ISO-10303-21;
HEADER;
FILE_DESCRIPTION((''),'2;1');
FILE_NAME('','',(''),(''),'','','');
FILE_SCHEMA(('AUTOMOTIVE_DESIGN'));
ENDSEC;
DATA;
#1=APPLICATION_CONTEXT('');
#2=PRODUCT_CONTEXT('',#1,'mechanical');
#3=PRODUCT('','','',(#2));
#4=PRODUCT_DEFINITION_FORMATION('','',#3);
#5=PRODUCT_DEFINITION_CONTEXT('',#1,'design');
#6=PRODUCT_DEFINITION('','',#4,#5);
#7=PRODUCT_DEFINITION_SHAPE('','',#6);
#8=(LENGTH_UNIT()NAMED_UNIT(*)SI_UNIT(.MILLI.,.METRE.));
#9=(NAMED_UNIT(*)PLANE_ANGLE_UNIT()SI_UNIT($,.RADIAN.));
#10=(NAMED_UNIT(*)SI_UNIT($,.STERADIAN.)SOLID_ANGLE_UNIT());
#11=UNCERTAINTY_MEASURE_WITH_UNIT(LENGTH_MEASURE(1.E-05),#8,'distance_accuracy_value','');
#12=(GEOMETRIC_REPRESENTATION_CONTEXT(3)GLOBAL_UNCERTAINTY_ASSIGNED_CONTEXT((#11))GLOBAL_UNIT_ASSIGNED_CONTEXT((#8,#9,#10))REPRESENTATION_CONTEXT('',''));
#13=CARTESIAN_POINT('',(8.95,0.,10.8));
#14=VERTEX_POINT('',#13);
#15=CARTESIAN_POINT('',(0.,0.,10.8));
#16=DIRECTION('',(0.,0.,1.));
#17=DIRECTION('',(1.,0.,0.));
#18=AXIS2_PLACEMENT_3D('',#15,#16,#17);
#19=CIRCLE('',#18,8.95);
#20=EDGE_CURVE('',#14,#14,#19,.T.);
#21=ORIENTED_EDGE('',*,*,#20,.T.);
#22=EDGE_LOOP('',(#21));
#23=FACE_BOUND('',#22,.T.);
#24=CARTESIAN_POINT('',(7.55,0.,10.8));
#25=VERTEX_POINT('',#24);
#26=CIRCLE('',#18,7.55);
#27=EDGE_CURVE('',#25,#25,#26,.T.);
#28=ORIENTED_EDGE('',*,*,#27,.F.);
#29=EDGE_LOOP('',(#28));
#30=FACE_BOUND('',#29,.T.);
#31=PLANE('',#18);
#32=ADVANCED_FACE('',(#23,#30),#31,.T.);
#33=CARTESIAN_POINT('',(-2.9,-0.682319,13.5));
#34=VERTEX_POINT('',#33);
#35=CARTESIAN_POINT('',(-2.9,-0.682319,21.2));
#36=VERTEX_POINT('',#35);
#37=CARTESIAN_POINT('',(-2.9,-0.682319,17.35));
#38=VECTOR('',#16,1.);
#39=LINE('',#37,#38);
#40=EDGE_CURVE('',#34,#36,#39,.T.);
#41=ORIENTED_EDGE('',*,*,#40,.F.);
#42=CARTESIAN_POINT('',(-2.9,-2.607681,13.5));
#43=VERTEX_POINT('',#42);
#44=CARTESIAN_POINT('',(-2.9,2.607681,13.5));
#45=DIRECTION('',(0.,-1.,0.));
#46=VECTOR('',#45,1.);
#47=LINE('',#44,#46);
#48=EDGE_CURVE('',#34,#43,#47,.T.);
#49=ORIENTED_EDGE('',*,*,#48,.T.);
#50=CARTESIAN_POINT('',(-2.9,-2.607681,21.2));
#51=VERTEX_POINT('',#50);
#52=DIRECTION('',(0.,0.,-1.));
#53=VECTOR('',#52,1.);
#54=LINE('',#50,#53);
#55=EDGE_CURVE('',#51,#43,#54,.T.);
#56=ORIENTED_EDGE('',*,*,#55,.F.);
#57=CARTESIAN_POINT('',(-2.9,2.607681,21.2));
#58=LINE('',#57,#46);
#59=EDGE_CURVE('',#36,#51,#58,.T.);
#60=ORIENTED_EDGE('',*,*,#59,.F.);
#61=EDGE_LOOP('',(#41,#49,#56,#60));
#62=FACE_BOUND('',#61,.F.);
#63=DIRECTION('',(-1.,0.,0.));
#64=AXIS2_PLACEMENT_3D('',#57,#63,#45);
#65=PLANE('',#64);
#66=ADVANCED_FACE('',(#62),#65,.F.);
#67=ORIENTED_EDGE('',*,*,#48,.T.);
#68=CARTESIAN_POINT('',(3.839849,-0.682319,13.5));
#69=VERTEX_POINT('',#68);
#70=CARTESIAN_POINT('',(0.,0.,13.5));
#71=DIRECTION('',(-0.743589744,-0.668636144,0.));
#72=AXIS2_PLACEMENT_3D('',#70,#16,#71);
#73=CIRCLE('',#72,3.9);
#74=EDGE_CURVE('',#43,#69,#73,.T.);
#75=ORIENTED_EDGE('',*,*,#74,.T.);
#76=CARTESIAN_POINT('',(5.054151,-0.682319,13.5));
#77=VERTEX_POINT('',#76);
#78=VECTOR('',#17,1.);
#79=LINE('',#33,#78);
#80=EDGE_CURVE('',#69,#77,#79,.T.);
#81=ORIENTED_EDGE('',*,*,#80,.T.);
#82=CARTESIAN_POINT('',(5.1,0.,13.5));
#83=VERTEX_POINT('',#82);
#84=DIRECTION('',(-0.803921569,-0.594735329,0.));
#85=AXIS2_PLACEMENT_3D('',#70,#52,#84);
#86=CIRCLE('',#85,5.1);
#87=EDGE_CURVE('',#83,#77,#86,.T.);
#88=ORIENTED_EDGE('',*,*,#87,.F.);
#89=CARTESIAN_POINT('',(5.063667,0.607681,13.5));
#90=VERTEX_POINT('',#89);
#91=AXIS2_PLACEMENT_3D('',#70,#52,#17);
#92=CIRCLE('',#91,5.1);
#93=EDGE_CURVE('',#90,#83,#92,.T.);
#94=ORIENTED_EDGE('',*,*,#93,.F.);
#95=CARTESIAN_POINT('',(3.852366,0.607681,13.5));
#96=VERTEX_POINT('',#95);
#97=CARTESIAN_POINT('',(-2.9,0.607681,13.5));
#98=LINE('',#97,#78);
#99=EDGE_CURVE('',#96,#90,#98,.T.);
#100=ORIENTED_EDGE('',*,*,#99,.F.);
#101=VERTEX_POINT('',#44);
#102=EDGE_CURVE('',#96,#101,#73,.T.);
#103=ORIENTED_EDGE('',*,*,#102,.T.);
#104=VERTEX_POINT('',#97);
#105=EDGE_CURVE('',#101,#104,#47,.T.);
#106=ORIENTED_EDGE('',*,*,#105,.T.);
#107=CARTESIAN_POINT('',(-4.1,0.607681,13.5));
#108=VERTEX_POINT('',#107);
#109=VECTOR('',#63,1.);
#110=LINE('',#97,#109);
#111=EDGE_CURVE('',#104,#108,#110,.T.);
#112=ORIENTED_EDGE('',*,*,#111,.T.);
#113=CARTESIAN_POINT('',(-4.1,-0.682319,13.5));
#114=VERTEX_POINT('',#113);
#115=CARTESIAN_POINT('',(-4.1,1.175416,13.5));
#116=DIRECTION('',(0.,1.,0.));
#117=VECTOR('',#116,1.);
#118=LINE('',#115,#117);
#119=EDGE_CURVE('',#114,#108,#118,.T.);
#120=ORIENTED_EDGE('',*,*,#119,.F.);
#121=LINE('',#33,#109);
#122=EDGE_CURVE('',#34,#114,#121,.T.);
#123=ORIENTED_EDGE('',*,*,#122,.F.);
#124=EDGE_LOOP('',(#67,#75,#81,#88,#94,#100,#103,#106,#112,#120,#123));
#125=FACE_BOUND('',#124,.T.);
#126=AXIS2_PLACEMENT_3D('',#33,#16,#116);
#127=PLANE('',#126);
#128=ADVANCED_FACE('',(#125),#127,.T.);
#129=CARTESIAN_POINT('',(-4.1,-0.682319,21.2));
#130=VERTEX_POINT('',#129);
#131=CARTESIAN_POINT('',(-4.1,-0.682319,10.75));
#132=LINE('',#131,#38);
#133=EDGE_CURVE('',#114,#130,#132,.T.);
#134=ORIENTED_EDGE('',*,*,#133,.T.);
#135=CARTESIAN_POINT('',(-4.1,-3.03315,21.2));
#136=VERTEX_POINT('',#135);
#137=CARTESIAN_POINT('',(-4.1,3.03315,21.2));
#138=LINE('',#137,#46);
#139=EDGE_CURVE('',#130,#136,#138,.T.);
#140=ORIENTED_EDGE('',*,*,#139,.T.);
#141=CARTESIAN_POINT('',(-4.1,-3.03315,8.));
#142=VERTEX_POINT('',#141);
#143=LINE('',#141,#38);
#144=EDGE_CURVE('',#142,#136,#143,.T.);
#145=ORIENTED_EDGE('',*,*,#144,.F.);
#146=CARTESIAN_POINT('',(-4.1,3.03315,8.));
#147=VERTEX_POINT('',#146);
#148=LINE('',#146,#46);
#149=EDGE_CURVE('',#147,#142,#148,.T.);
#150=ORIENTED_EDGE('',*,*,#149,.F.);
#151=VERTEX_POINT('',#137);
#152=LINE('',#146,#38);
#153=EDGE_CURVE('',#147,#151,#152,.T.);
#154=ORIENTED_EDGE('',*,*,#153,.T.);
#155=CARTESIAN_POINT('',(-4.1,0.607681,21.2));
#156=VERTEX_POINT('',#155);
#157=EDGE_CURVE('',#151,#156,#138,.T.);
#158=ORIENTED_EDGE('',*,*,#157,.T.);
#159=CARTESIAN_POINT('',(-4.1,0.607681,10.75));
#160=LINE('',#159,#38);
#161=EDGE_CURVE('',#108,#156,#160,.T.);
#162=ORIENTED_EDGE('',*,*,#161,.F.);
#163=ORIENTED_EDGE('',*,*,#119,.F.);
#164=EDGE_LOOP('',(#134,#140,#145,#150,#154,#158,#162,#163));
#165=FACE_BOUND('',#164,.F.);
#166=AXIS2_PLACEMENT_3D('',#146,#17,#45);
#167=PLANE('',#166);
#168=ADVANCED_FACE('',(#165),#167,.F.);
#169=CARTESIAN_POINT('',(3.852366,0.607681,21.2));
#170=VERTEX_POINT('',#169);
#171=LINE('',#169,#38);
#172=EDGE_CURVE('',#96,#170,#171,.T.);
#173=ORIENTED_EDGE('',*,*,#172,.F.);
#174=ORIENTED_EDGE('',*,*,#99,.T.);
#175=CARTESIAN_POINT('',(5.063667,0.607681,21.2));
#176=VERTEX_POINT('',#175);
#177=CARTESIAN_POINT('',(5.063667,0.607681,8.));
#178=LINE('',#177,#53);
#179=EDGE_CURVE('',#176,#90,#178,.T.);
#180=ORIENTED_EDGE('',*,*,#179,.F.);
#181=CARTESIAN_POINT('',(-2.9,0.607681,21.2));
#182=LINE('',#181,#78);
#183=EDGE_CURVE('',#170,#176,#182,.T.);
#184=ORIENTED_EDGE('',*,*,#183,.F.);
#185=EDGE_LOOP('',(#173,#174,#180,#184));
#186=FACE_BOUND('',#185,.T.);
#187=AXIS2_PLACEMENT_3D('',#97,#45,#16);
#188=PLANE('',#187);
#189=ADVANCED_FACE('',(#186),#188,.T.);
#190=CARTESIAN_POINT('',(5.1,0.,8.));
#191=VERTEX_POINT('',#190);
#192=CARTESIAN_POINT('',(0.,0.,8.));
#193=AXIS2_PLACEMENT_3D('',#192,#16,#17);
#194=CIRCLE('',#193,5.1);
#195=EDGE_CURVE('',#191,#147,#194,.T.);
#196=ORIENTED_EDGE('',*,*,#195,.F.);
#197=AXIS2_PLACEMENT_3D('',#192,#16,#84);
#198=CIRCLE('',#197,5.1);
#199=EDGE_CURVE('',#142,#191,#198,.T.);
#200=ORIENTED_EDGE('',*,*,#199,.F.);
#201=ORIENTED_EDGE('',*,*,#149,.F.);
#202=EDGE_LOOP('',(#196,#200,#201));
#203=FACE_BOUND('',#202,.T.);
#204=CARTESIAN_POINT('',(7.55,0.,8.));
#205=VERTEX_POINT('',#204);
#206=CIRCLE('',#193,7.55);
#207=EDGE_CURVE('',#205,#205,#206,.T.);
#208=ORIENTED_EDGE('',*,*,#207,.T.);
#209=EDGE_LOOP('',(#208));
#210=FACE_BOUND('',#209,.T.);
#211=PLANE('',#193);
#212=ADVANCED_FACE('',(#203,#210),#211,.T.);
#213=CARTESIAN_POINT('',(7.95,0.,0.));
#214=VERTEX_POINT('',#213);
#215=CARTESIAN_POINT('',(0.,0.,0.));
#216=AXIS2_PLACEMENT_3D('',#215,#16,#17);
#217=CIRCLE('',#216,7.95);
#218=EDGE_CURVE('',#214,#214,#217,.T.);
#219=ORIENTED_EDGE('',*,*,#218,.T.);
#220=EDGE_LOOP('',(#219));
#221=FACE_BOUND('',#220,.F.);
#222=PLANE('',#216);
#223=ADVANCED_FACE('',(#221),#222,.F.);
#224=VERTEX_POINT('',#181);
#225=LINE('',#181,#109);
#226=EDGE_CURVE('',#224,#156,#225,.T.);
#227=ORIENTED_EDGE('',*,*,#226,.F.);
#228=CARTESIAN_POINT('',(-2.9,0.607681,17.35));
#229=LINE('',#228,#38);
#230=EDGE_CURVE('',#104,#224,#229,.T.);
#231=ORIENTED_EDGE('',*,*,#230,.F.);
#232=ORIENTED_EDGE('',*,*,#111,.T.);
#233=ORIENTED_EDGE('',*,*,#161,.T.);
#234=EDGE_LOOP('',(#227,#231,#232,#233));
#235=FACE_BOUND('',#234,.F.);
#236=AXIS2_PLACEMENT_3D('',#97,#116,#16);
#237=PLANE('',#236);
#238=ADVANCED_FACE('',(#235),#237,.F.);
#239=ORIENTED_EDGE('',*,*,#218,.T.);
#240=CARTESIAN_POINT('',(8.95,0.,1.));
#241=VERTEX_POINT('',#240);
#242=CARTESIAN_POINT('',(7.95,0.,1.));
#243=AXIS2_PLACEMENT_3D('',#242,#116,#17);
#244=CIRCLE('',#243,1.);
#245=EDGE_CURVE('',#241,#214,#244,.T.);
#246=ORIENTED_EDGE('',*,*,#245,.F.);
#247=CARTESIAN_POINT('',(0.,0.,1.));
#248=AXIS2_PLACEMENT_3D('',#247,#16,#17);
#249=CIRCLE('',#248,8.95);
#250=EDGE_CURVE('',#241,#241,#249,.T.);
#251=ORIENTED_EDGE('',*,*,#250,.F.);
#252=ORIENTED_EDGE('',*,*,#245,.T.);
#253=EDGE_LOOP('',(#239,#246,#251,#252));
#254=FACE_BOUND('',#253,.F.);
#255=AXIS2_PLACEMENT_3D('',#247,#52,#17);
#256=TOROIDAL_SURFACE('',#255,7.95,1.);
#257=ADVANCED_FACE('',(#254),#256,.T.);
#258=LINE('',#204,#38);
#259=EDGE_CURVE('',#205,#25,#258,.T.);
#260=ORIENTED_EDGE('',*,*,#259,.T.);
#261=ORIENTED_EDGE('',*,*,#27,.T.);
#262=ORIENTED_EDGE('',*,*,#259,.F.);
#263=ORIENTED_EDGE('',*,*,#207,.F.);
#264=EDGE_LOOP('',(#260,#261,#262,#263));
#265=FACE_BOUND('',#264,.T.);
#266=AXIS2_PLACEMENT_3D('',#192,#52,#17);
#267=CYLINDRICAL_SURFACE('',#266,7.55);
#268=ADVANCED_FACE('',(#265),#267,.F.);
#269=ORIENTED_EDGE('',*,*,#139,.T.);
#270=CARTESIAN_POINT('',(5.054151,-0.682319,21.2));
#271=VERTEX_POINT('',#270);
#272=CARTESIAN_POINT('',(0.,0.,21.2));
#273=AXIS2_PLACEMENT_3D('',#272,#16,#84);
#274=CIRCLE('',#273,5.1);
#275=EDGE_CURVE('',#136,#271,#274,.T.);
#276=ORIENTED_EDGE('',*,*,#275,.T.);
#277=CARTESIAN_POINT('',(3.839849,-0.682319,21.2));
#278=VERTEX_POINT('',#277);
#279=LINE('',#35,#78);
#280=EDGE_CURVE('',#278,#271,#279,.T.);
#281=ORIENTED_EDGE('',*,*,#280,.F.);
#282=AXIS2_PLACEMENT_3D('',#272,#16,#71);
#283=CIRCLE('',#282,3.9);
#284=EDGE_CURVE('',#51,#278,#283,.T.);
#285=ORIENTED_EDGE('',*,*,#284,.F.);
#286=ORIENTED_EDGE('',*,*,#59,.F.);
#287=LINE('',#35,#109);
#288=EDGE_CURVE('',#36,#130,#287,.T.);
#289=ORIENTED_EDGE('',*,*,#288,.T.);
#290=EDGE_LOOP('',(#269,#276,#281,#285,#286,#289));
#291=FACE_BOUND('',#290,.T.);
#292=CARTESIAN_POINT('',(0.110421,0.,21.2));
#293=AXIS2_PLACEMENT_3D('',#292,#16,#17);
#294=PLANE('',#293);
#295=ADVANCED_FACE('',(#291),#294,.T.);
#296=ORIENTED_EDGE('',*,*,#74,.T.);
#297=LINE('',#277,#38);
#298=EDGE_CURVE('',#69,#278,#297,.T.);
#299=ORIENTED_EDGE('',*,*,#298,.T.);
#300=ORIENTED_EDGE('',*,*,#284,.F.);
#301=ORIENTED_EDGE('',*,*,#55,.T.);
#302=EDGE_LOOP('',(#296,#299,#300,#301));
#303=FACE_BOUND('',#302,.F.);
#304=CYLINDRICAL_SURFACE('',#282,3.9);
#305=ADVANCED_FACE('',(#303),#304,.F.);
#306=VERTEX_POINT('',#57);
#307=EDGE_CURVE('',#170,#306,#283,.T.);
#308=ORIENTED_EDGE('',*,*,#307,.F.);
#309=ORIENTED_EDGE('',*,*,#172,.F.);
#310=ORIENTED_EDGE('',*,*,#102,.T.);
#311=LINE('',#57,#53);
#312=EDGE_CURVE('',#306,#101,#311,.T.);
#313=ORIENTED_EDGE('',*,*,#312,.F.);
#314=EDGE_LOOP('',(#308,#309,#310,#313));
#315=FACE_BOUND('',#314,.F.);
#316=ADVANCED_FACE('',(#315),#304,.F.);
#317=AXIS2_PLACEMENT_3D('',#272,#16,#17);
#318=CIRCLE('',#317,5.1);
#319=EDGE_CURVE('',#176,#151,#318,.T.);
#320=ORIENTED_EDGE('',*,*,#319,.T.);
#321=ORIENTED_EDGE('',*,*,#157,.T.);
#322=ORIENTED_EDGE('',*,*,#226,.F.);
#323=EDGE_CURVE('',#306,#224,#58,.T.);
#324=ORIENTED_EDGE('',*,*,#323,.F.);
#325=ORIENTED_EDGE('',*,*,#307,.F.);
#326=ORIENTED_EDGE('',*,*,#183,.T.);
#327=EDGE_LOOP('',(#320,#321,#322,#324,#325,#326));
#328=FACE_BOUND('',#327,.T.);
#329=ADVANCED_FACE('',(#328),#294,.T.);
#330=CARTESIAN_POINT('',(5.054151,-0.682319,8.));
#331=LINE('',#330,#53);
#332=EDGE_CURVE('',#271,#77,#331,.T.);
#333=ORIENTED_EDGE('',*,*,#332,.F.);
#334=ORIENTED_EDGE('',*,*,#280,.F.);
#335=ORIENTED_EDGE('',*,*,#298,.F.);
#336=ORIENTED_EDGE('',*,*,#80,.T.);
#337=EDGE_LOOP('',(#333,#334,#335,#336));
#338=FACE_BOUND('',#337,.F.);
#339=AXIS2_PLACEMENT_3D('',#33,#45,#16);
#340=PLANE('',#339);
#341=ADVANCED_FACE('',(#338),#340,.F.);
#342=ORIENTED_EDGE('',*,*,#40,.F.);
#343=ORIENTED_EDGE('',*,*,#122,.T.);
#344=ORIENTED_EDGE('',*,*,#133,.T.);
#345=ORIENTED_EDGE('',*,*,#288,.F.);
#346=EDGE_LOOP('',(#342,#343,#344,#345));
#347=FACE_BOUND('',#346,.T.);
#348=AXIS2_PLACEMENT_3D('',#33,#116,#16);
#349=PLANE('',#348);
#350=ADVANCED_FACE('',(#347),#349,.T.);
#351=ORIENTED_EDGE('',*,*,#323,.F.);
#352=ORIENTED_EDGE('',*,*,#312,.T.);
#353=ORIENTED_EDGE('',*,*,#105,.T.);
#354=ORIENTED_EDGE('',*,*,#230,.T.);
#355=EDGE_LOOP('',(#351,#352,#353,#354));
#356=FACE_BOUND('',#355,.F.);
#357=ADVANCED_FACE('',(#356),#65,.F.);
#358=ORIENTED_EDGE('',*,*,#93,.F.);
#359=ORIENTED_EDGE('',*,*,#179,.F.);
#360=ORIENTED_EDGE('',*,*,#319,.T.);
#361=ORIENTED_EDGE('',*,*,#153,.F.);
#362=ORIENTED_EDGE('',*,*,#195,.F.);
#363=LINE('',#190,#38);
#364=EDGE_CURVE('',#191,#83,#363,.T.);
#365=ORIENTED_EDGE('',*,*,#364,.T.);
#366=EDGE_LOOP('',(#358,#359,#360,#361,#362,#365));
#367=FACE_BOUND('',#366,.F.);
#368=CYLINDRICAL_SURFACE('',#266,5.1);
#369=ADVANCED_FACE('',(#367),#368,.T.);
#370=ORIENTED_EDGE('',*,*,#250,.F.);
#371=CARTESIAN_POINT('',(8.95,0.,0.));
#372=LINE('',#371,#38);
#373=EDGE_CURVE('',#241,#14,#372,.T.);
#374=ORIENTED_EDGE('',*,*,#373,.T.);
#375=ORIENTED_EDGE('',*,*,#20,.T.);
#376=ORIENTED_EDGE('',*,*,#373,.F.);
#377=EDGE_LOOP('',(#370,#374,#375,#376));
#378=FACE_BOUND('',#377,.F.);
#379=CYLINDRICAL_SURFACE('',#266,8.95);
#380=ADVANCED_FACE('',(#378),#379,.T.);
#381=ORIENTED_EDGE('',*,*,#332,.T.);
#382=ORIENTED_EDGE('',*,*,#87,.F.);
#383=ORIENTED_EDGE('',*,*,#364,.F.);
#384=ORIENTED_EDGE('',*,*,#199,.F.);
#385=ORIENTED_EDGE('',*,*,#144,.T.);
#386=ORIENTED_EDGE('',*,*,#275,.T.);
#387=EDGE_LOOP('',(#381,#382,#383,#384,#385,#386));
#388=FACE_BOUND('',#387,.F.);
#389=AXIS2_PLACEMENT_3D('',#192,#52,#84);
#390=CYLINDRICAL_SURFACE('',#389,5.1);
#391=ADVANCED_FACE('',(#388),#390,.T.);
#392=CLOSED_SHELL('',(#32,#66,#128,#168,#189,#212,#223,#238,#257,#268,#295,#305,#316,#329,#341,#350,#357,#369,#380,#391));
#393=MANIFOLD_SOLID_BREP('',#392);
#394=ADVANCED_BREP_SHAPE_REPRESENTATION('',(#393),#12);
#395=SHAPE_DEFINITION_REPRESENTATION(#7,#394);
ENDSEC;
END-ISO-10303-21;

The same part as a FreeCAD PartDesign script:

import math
import FreeCAD as App
import Part
import Sketcher

V = App.Vector
Q = App.Units.Quantity


def edges_at(feature, points):
    """Names of the edges that pass closest to the given points."""
    edges = feature.Shape.Edges
    near = lambda p: min(range(len(edges)), key=lambda i: edges[i].distToShape(Part.Vertex(*p))[0])
    return sorted({f"Edge{near(p) + 1}" for p in points})

doc = App.newDocument("Part")
params = doc.addObject("Spreadsheet::Sheet", "Params")
for row, (alias, value) in enumerate([
    ("sketch1_diameter", "17.9 mm"),
    ("pad1_length", "8 mm"),
    ("sketch2_diameter", "17.9 mm"),
    ("sketch2_diameter2", "15.1 mm"),
    ("pad2_length", "2.8 mm"),
    ("sketch3_radius", "5.1 mm"),
    ("pad3_length", "13.2 mm"),
    ("fillet_radius", "1 mm"),
    ("sketch4_radius", "3.9 mm"),
    ("pocket1_length", "7.7 mm"),
    ("sketch5_height", "7.7 mm"),
    ("sketch5_width", "1.29 mm"),
], start=1):
    params.set(f"A{row}", alias)
    params.set(f"B{row}", "=" + value)
    params.setAlias(f"B{row}", alias)

body = doc.addObject("PartDesign::Body", "Body")

# Sketch on XY plane
sketch1 = body.newObject("Sketcher::SketchObject", "Sketch")
sketch1.AttachmentSupport = (doc.getObject("XY_Plane"), [""])
sketch1.MapMode = "FlatFace"
sketch1.addGeometry(Part.Circle(V(0, 0, 0), V(0, 0, 1), 9), False)
sketch1.addConstraint([
    Sketcher.Constraint("Coincident", 0, 3, -1, 1),
    Sketcher.Constraint("Diameter", 0, Q("17.9 mm")),
])
sketch1.setExpression("Constraints[1]", "Params.sketch1_diameter")
pad1 = body.newObject("PartDesign::Pad", "Pad")
pad1.Profile = sketch1
pad1.setExpression("Length", "Params.pad1_length")

# Sketch on XY plane
sketch2 = body.newObject("Sketcher::SketchObject", "Sketch001")
sketch2.AttachmentSupport = (doc.getObject("XY_Plane"), [""])
sketch2.MapMode = "FlatFace"
sketch2.AttachmentOffset = App.Placement(V(0, 0, 8), App.Rotation())
sketch2.addGeometry([
    Part.Circle(V(0, 0, 0), V(0, 0, 1), 9),
    Part.Circle(V(0, 0, 0), V(0, 0, 1), 8),
], False)
sketch2.addConstraint([
    Sketcher.Constraint("Coincident", 0, 3, -1, 1),
    Sketcher.Constraint("Coincident", 1, 3, -1, 1),
    Sketcher.Constraint("Diameter", 0, Q("17.9 mm")),
    Sketcher.Constraint("Diameter", 1, Q("15.1 mm")),
])
sketch2.setExpression("Constraints[2]", "Params.sketch2_diameter")
sketch2.setExpression("Constraints[3]", "Params.sketch2_diameter2")
pad2 = body.newObject("PartDesign::Pad", "Pad001")
pad2.Profile = sketch2
pad2.setExpression("Length", "Params.pad2_length")

# Sketch on XY plane
sketch3 = body.newObject("Sketcher::SketchObject", "Sketch002")
sketch3.AttachmentSupport = (doc.getObject("XY_Plane"), [""])
sketch3.MapMode = "FlatFace"
sketch3.AttachmentOffset = App.Placement(V(0, 0, 8), App.Rotation())
sketch3.addGeometry([
    Part.ArcOfCircle(Part.Circle(V(0, 0, 0), V(0, 0, 1), 5), math.radians(-144), math.radians(0)),
    Part.ArcOfCircle(Part.Circle(V(0, 0, 0), V(0, 0, 1), 5), math.radians(0), math.radians(144)),
    Part.LineSegment(V(-4, 3, 0), V(-4, -3, 0)),
], False)
sketch3.addConstraint([
    Sketcher.Constraint("Tangent", 0, 2, 1, 1),
    Sketcher.Constraint("Coincident", 1, 2, 2, 1),
    Sketcher.Constraint("Coincident", 2, 2, 0, 1),
    Sketcher.Constraint("Vertical", 2),
    Sketcher.Constraint("Coincident", 0, 3, -1, 1),
    Sketcher.Constraint("Equal", 0, 1),
    Sketcher.Constraint("PointOnObject", 0, 2, -1),
    Sketcher.Constraint("Radius", 0, Q("5.1 mm")),
    Sketcher.Constraint("DistanceX", 1, 2, -1, 1, Q("4.1 mm")),
])
sketch3.setExpression("Constraints[7]", "Params.sketch3_radius")
pad3 = body.newObject("PartDesign::Pad", "Pad002")
pad3.Profile = sketch3
pad3.setExpression("Length", "Params.pad3_length")
doc.recompute()

fillet = body.newObject("PartDesign::Fillet", "Fillet")
fillet.Base = (pad3, edges_at(pad3, [(-8.95, 0, 0)]))
fillet.setExpression("Radius", "Params.fillet_radius")

# Sketch on XY plane
sketch4 = body.newObject("Sketcher::SketchObject", "Sketch003")
sketch4.AttachmentSupport = (doc.getObject("XY_Plane"), [""])
sketch4.MapMode = "FlatFace"
sketch4.AttachmentOffset = App.Placement(V(0, 0, 21.2), App.Rotation())
sketch4.addGeometry([
    Part.LineSegment(V(-2.9, 2.6, 0), V(-2.9, -2.6, 0)),
    Part.ArcOfCircle(Part.Circle(V(0, 0, 0), V(0, 0, 1), 3.9), math.radians(-138), math.radians(138)),
], False)
sketch4.addConstraint([
    Sketcher.Constraint("Coincident", 0, 1, 1, 2),
    Sketcher.Constraint("Coincident", 1, 1, 0, 2),
    Sketcher.Constraint("Vertical", 0),
    Sketcher.Constraint("Coincident", 1, 3, -1, 1),
    Sketcher.Constraint("Radius", 1, Q("3.9 mm")),
    Sketcher.Constraint("DistanceX", 0, 1, -1, 1, Q("2.9 mm")),
])
sketch4.setExpression("Constraints[4]", "Params.sketch4_radius")
pocket1 = body.newObject("PartDesign::Pocket", "Pocket")
pocket1.Profile = sketch4
pocket1.setExpression("Length", "Params.pocket1_length")

# Sketch on YZ plane
sketch5 = body.newObject("Sketcher::SketchObject", "Sketch004")
sketch5.AttachmentSupport = (doc.getObject("YZ_Plane"), [""])
sketch5.MapMode = "FlatFace"
sketch5.AttachmentOffset = App.Placement(V(0, 0, -2.9), App.Rotation())
sketch5.addGeometry([
    Part.LineSegment(V(-0.7, 21.2, 0), V(-0.7, 13.5, 0)),
    Part.LineSegment(V(-0.7, 13.5, 0), V(0.6, 13.5, 0)),
    Part.LineSegment(V(0.6, 13.5, 0), V(0.6, 21.2, 0)),
    Part.LineSegment(V(0.6, 21.2, 0), V(-0.7, 21.2, 0)),
], False)
sketch5.addConstraint([
    Sketcher.Constraint("Coincident", 0, 2, 1, 1),
    Sketcher.Constraint("Coincident", 1, 2, 2, 1),
    Sketcher.Constraint("Coincident", 2, 2, 3, 1),
    Sketcher.Constraint("Coincident", 3, 2, 0, 1),
    Sketcher.Constraint("Vertical", 0),
    Sketcher.Constraint("Horizontal", 1),
    Sketcher.Constraint("Vertical", 2),
    Sketcher.Constraint("Horizontal", 3),
    Sketcher.Constraint("DistanceY", 0, 2, 0, 1, Q("7.7 mm")),
    Sketcher.Constraint("DistanceX", 1, 1, 1, 2, Q("1.29 mm")),
    Sketcher.Constraint("DistanceY", -1, 1, 0, 2, Q("13.5 mm")),
    Sketcher.Constraint("DistanceX", 0, 2, -1, 1, Q("0.682319 mm")),
])
sketch5.setExpression("Constraints[8]", "Params.sketch5_height")
sketch5.setExpression("Constraints[9]", "Params.sketch5_width")
pocket2 = body.newObject("PartDesign::Pocket", "Pocket001")
pocket2.Profile = sketch5
pocket2.Type = "ThroughAll"
pocket2.Midplane = True

doc.recompute()
